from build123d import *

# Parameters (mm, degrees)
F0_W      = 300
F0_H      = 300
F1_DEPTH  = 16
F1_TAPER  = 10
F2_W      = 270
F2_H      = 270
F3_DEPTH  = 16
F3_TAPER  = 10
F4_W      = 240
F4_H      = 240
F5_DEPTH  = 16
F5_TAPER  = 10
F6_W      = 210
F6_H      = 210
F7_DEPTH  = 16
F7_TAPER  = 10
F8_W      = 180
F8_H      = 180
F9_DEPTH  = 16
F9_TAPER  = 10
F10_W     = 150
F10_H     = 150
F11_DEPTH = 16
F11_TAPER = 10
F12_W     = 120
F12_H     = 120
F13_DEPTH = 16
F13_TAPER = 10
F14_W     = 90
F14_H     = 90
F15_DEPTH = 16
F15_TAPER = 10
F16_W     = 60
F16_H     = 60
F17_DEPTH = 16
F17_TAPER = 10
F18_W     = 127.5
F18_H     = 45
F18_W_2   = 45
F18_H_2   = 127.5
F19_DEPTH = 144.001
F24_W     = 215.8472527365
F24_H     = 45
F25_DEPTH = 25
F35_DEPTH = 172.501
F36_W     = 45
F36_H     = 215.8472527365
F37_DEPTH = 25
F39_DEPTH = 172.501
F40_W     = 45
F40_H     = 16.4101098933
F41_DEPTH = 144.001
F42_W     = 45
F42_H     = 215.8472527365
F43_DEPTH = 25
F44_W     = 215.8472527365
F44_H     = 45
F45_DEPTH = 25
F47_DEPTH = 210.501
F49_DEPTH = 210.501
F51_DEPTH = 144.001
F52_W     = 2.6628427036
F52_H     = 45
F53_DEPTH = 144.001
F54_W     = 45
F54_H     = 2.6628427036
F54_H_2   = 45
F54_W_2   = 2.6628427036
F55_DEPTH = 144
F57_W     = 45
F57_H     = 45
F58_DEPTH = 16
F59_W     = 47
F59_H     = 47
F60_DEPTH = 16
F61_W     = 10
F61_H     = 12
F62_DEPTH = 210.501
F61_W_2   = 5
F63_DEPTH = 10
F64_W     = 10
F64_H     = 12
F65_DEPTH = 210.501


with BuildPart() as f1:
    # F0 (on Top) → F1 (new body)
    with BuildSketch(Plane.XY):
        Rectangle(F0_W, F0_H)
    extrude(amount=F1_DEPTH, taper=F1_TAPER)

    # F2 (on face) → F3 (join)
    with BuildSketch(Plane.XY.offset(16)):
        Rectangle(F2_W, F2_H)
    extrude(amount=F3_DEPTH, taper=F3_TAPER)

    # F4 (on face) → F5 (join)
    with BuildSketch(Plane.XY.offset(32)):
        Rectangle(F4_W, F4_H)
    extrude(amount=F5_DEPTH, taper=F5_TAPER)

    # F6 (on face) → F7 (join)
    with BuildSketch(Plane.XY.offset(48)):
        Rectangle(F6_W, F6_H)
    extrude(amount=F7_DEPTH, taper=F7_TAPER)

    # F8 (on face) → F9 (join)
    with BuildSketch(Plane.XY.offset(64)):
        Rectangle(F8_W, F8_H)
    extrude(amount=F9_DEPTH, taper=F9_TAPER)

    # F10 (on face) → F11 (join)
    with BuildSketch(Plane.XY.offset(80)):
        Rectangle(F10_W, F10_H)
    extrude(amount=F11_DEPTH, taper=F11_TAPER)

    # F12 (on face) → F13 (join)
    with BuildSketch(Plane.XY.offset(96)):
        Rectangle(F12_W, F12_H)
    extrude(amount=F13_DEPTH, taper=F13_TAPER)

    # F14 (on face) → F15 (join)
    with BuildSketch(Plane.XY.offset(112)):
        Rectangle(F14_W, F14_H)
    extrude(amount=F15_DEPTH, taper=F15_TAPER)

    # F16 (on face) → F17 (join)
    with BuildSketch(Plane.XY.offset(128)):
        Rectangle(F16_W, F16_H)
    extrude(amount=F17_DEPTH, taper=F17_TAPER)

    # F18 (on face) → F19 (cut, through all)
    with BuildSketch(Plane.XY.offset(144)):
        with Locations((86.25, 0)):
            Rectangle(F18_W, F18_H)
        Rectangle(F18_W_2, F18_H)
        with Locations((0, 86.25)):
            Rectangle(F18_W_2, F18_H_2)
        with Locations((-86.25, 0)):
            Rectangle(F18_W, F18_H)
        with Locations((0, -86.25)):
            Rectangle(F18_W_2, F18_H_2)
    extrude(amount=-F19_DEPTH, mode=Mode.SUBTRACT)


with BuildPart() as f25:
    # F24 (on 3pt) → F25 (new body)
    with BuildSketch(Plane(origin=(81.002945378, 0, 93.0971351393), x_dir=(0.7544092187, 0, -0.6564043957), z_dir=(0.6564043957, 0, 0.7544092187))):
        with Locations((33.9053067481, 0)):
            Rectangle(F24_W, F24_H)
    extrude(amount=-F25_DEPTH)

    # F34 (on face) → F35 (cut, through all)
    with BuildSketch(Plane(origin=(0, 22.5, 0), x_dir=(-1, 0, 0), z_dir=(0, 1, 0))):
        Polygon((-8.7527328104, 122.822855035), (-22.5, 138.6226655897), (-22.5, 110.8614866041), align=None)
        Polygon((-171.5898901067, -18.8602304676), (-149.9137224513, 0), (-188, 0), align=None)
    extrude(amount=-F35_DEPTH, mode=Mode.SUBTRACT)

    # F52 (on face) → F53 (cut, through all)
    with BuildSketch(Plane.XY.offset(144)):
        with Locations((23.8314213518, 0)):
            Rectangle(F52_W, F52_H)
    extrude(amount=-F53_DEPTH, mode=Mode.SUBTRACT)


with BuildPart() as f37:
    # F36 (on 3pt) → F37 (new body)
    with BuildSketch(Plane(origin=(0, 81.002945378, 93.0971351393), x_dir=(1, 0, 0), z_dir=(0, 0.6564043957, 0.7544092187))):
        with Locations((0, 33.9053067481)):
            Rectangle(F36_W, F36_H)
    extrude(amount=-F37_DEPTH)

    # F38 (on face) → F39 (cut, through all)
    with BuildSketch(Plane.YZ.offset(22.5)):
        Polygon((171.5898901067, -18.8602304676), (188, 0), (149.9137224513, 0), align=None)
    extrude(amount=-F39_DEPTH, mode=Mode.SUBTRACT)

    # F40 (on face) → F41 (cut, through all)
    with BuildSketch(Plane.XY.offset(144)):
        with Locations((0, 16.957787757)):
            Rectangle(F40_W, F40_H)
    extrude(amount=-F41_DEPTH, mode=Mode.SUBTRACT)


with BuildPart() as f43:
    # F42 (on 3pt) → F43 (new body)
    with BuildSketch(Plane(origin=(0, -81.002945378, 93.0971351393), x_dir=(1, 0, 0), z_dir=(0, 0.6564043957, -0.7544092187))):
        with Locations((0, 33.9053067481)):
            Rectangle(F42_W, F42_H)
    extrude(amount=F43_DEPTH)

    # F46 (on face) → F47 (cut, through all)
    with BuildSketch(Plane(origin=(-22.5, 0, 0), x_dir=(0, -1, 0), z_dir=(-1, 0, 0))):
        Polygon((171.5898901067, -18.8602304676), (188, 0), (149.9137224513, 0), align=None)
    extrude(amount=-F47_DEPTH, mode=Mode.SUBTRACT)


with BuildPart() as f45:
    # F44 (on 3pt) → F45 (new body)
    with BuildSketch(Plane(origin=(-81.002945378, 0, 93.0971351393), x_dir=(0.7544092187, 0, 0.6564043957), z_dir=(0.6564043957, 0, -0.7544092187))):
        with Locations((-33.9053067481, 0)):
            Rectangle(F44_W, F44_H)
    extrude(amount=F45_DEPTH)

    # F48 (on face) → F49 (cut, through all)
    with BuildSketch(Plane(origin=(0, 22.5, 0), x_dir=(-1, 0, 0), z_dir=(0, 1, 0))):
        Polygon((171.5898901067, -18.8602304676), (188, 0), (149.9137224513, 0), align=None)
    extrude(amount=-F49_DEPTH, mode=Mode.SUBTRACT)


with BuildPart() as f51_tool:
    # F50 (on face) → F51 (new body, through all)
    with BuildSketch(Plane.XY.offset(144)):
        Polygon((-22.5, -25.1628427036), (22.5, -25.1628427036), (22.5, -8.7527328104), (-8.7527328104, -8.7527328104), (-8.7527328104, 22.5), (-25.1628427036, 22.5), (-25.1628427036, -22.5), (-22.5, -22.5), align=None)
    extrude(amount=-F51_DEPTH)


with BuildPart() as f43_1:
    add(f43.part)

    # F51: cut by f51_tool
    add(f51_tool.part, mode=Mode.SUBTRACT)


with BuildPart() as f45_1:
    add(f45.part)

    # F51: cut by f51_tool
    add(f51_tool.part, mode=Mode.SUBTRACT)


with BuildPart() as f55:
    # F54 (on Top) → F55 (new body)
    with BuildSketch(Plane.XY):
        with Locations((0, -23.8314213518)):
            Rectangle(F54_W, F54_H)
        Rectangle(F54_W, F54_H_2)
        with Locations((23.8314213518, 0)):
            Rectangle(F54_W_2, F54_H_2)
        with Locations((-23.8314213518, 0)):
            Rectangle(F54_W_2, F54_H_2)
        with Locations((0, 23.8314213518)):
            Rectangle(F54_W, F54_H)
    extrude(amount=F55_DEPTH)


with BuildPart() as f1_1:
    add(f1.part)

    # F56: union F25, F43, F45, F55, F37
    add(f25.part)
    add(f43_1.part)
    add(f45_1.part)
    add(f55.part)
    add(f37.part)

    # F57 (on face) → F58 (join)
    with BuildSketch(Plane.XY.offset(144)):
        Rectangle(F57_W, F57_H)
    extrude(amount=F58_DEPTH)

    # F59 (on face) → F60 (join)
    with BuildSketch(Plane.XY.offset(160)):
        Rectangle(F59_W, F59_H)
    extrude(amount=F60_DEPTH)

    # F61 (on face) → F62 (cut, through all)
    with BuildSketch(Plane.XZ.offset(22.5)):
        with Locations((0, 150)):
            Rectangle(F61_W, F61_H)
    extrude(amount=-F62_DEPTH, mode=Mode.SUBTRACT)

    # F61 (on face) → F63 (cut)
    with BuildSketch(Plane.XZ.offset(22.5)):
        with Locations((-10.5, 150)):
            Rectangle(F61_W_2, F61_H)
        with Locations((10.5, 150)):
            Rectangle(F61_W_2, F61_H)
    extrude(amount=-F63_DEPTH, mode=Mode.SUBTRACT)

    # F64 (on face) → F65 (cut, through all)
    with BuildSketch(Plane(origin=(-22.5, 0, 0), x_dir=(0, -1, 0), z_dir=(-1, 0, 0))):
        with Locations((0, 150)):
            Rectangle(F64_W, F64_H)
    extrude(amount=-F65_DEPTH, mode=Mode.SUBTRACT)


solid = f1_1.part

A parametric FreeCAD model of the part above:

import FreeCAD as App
import Part
import Sketcher

V = App.Vector
Q = App.Units.Quantity


def add_polygon(sketch, points):
    """Adds a closed chain of lines whose ends are joined by coincident constraints."""
    first, n = sketch.GeometryCount, len(points)
    for a, b in zip(points, points[1:] + points[:1]):
        sketch.addGeometry(Part.LineSegment(App.Vector(*a, 0), App.Vector(*b, 0)), False)
    for i in range(n):
        sketch.addConstraint(Sketcher.Constraint("Coincident", first + i, 2, first + (i + 1) % n, 1))

doc = App.newDocument("Part")
body = doc.addObject("PartDesign::Body", "Body")
body.AllowCompound = True

sketch1 = doc.addObject("Sketcher::SketchObject", "Sketch")
body.addObject(sketch1)
sketch1.AttachmentSupport = (doc.XY_Plane, [""])
sketch1.MapMode = "FlatFace"
add_polygon(sketch1, [(-150, 150), (-150, -150), (150, -150), (150, 150)])
sketch1.addConstraint([
    Sketcher.Constraint("Vertical", 0),
    Sketcher.Constraint("Horizontal", 1),
    Sketcher.Constraint("Vertical", 2),
    Sketcher.Constraint("Horizontal", 3),
    Sketcher.Constraint("Symmetric", 0, 2, 2, 2, -1, 1),
    Sketcher.Constraint("Equal", 3, 0),
    Sketcher.Constraint("DistanceX", 1, 1, 1, 2, Q("300 mm")),
])
pad1 = doc.addObject("PartDesign::Pad", "Pad")
body.addObject(pad1)
pad1.Profile = sketch1
pad1.Length = 16
pad1.TaperAngle = -10

sketch2 = doc.addObject("Sketcher::SketchObject", "Sketch001")
body.addObject(sketch2)
sketch2.AttachmentSupport = (doc.XY_Plane, [""])
sketch2.MapMode = "FlatFace"
sketch2.AttachmentOffset = App.Placement(V(0, 0, 16), App.Rotation())
add_polygon(sketch2, [(-135, 135), (-135, -135), (135, -135), (135, 135)])
sketch2.addConstraint([
    Sketcher.Constraint("Vertical", 0),
    Sketcher.Constraint("Horizontal", 1),
    Sketcher.Constraint("Vertical", 2),
    Sketcher.Constraint("Horizontal", 3),
    Sketcher.Constraint("Symmetric", 0, 2, 2, 2, -1, 1),
    Sketcher.Constraint("Equal", 3, 0),
    Sketcher.Constraint("DistanceX", 1, 1, 1, 2, Q("270 mm")),
])
pad2 = doc.addObject("PartDesign::Pad", "Pad001")
body.addObject(pad2)
pad2.Profile = sketch2
pad2.Length = 16
pad2.TaperAngle = -10

sketch3 = doc.addObject("Sketcher::SketchObject", "Sketch002")
body.addObject(sketch3)
sketch3.AttachmentSupport = (doc.XY_Plane, [""])
sketch3.MapMode = "FlatFace"
sketch3.AttachmentOffset = App.Placement(V(0, 0, 32), App.Rotation())
add_polygon(sketch3, [(-120, 120), (-120, -120), (120, -120), (120, 120)])
sketch3.addConstraint([
    Sketcher.Constraint("Vertical", 0),
    Sketcher.Constraint("Horizontal", 1),
    Sketcher.Constraint("Vertical", 2),
    Sketcher.Constraint("Horizontal", 3),
    Sketcher.Constraint("Symmetric", 0, 2, 2, 2, -1, 1),
    Sketcher.Constraint("Equal", 3, 0),
    Sketcher.Constraint("DistanceX", 1, 1, 1, 2, Q("240 mm")),
])
pad3 = doc.addObject("PartDesign::Pad", "Pad002")
body.addObject(pad3)
pad3.Profile = sketch3
pad3.Length = 16
pad3.TaperAngle = -10

sketch4 = doc.addObject("Sketcher::SketchObject", "Sketch003")
body.addObject(sketch4)
sketch4.AttachmentSupport = (doc.XY_Plane, [""])
sketch4.MapMode = "FlatFace"
sketch4.AttachmentOffset = App.Placement(V(0, 0, 48), App.Rotation())
add_polygon(sketch4, [(-105, 105), (-105, -105), (105, -105), (105, 105)])
sketch4.addConstraint([
    Sketcher.Constraint("Vertical", 0),
    Sketcher.Constraint("Horizontal", 1),
    Sketcher.Constraint("Vertical", 2),
    Sketcher.Constraint("Horizontal", 3),
    Sketcher.Constraint("Symmetric", 0, 2, 2, 2, -1, 1),
    Sketcher.Constraint("Equal", 3, 0),
    Sketcher.Constraint("DistanceX", 1, 1, 1, 2, Q("210 mm")),
])
pad4 = doc.addObject("PartDesign::Pad", "Pad003")
body.addObject(pad4)
pad4.Profile = sketch4
pad4.Length = 16
pad4.TaperAngle = -10

sketch5 = doc.addObject("Sketcher::SketchObject", "Sketch004")
body.addObject(sketch5)
sketch5.AttachmentSupport = (doc.XY_Plane, [""])
sketch5.MapMode = "FlatFace"
sketch5.AttachmentOffset = App.Placement(V(0, 0, 64), App.Rotation())
add_polygon(sketch5, [(-90, 90), (-90, -90), (90, -90), (90, 90)])
sketch5.addConstraint([
    Sketcher.Constraint("Vertical", 0),
    Sketcher.Constraint("Horizontal", 1),
    Sketcher.Constraint("Vertical", 2),
    Sketcher.Constraint("Horizontal", 3),
    Sketcher.Constraint("Symmetric", 0, 2, 2, 2, -1, 1),
    Sketcher.Constraint("Equal", 3, 0),
    Sketcher.Constraint("DistanceX", 1, 1, 1, 2, Q("180 mm")),
])
pad5 = doc.addObject("PartDesign::Pad", "Pad004")
body.addObject(pad5)
pad5.Profile = sketch5
pad5.Length = 16
pad5.TaperAngle = -10

sketch6 = doc.addObject("Sketcher::SketchObject", "Sketch005")
body.addObject(sketch6)
sketch6.AttachmentSupport = (doc.XY_Plane, [""])
sketch6.MapMode = "FlatFace"
sketch6.AttachmentOffset = App.Placement(V(0, 0, 80), App.Rotation())
add_polygon(sketch6, [(-75, 75), (-75, -75), (75, -75), (75, 75)])
sketch6.addConstraint([
    Sketcher.Constraint("Vertical", 0),
    Sketcher.Constraint("Horizontal", 1),
    Sketcher.Constraint("Vertical", 2),
    Sketcher.Constraint("Horizontal", 3),
    Sketcher.Constraint("Symmetric", 0, 2, 2, 2, -1, 1),
    Sketcher.Constraint("Equal", 3, 0),
    Sketcher.Constraint("DistanceX", 1, 1, 1, 2, Q("150 mm")),
])
pad6 = doc.addObject("PartDesign::Pad", "Pad005")
body.addObject(pad6)
pad6.Profile = sketch6
pad6.Length = 16
pad6.TaperAngle = -10

sketch7 = doc.addObject("Sketcher::SketchObject", "Sketch006")
body.addObject(sketch7)
sketch7.AttachmentSupport = (doc.XY_Plane, [""])
sketch7.MapMode = "FlatFace"
sketch7.AttachmentOffset = App.Placement(V(0, 0, 96), App.Rotation())
add_polygon(sketch7, [(-60, 60), (-60, -60), (60, -60), (60, 60)])
sketch7.addConstraint([
    Sketcher.Constraint("Vertical", 0),
    Sketcher.Constraint("Horizontal", 1),
    Sketcher.Constraint("Vertical", 2),
    Sketcher.Constraint("Horizontal", 3),
    Sketcher.Constraint("Symmetric", 0, 2, 2, 2, -1, 1),
    Sketcher.Constraint("Equal", 3, 0),
    Sketcher.Constraint("DistanceX", 1, 1, 1, 2, Q("120 mm")),
])
pad7 = doc.addObject("PartDesign::Pad", "Pad006")
body.addObject(pad7)
pad7.Profile = sketch7
pad7.Length = 16
pad7.TaperAngle = -10

sketch8 = doc.addObject("Sketcher::SketchObject", "Sketch007")
body.addObject(sketch8)
sketch8.AttachmentSupport = (doc.XY_Plane, [""])
sketch8.MapMode = "FlatFace"
sketch8.AttachmentOffset = App.Placement(V(0, 0, 112), App.Rotation())
add_polygon(sketch8, [(-45, 45), (-45, -45), (45, -45), (45, 45)])
sketch8.addConstraint([
    Sketcher.Constraint("Vertical", 0),
    Sketcher.Constraint("Horizontal", 1),
    Sketcher.Constraint("Vertical", 2),
    Sketcher.Constraint("Horizontal", 3),
    Sketcher.Constraint("Symmetric", 0, 2, 2, 2, -1, 1),
    Sketcher.Constraint("Equal", 3, 0),
    Sketcher.Constraint("DistanceX", 1, 1, 1, 2, Q("90 mm")),
])
pad8 = doc.addObject("PartDesign::Pad", "Pad007")
body.addObject(pad8)
pad8.Profile = sketch8
pad8.Length = 16
pad8.TaperAngle = -10

sketch9 = doc.addObject("Sketcher::SketchObject", "Sketch008")
body.addObject(sketch9)
sketch9.AttachmentSupport = (doc.XY_Plane, [""])
sketch9.MapMode = "FlatFace"
sketch9.AttachmentOffset = App.Placement(V(0, 0, 128), App.Rotation())
add_polygon(sketch9, [(-30, 30), (-30, -30), (30, -30), (30, 30)])
sketch9.addConstraint([
    Sketcher.Constraint("Vertical", 0),
    Sketcher.Constraint("Horizontal", 1),
    Sketcher.Constraint("Vertical", 2),
    Sketcher.Constraint("Horizontal", 3),
    Sketcher.Constraint("Symmetric", 0, 2, 2, 2, -1, 1),
    Sketcher.Constraint("Equal", 3, 0),
    Sketcher.Constraint("DistanceX", 1, 1, 1, 2, Q("60 mm")),
])
pad9 = doc.addObject("PartDesign::Pad", "Pad008")
body.addObject(pad9)
pad9.Profile = sketch9
pad9.Length = 16
pad9.TaperAngle = -10

sketch10 = doc.addObject("Sketcher::SketchObject", "Sketch009")
body.addObject(sketch10)
sketch10.AttachmentSupport = (doc.XY_Plane, [""])
sketch10.MapMode = "FlatFace"
sketch10.AttachmentOffset = App.Placement(V(0, 0, 144), App.Rotation())
add_polygon(sketch10, [(150, -22), (150, 22), (22, 22), (22, 150), (-22, 150), (-22, 22), (-150, 22), (-150, -22), (-22, -22), (-22, -150), (22, -150), (22, -22)])
sketch10.addConstraint([
    Sketcher.Constraint("Vertical", 0),
    Sketcher.Constraint("Horizontal", 1),
    Sketcher.Constraint("Vertical", 2),
    Sketcher.Constraint("Horizontal", 3),
    Sketcher.Constraint("Vertical", 4),
    Sketcher.Constraint("Horizontal", 5),
    Sketcher.Constraint("Vertical", 6),
    Sketcher.Constraint("Horizontal", 7),
    Sketcher.Constraint("Vertical", 8),
    Sketcher.Constraint("Horizontal", 9),
    Sketcher.Constraint("Vertical", 10),
    Sketcher.Constraint("Horizontal", 11),
    Sketcher.Constraint("Symmetric", 0, 2, 6, 2, -1, 1),
    Sketcher.Constraint("Symmetric", 2, 2, 8, 2, -1, 1),
    Sketcher.Constraint("Symmetric", 4, 2, 10, 2, -1, 1),
    Sketcher.Constraint("Symmetric", 1, 2, 4, 2, -2),
    Sketcher.Constraint("Equal", 9, 0),
    Sketcher.Constraint("Equal", 11, 2),
    Sketcher.Constraint("DistanceX", 3, 2, 3, 1, Q("45 mm")),
    Sketcher.Constraint("DistanceX", 1, 2, 1, 1, Q("127.5 mm")),
])
pocket1 = doc.addObject("PartDesign::Pocket", "Pocket")
body.addObject(pocket1)
pocket1.Profile = sketch10
pocket1.Type = "ThroughAll"
body2 = doc.addObject("PartDesign::Body", "Body001")

sketch11 = doc.addObject("Sketcher::SketchObject", "Sketch010")
body2.addObject(sketch11)
sketch11.Placement = App.Placement(V(81.002945, 0, 93.097135), App.Rotation(V(0.754409219, 0, -0.656404396), V(0, 1.000000001, 0), V(0.656404396, 0, 0.754409219), "ZXY"))
add_polygon(sketch11, [(-74, 23), (-74, -23), (142, -23), (142, 23)])
sketch11.addConstraint([
    Sketcher.Constraint("Vertical", 0),
    Sketcher.Constraint("Horizontal", 1),
    Sketcher.Constraint("Vertical", 2),
    Sketcher.Constraint("Horizontal", 3),
    Sketcher.Constraint("DistanceY", 0, 2, 0, 1, Q("45 mm")),
    Sketcher.Constraint("DistanceY", 0, 2, -1, 1, Q("22.5 mm")),
    Sketcher.Constraint("DistanceX", 1, 1, 1, 2, Q("215.847253 mm")),
    Sketcher.Constraint("DistanceX", 0, 2, -1, 1, Q("74.01832 mm")),
])
pad10 = doc.addObject("PartDesign::Pad", "Pad009")
body2.addObject(pad10)
pad10.Profile = sketch11
pad10.Length = 25
pad10.Reversed = True

sketch12 = doc.addObject("Sketcher::SketchObject", "Sketch011")
body2.addObject(sketch12)
sketch12.AttachmentSupport = (doc.getObject("XZ_Plane001"), [""])
sketch12.MapMode = "FlatFace"
sketch12.AttachmentOffset = App.Placement(V(0, 0, -22.5), App.Rotation())
add_polygon(sketch12, [(9, 123), (22, 139), (22, 111)])
add_polygon(sketch12, [(172, -19), (150, 0), (188, 0)])
sketch12.addConstraint([
    Sketcher.Constraint("Vertical", 1),
    Sketcher.Constraint("Horizontal", 4),
    Sketcher.Constraint("PointOnObject", 3, 2, -1),
    Sketcher.Constraint("Perpendicular", 0, 2),
    Sketcher.Constraint("Parallel", 2, 3),
    Sketcher.Constraint("Perpendicular", 3, 5),
    Sketcher.Constraint("Distance", 5, Q("25 mm")),
    Sketcher.Constraint("DistanceX", -1, 1, 4, 2, Q("188 mm")),
    Sketcher.Constraint("DistanceX", -1, 1, 0, 2, Q("22.5 mm")),
    Sketcher.Constraint("DistanceY", 1, 2, 1, 1, Q("27.761179 mm")),
    Sketcher.Constraint("Distance", 0, Q("20.943289 mm")),
    Sketcher.Constraint("DistanceY", -1, 1, 0, 2, Q("138.622666 mm")),
])
pocket2 = doc.addObject("PartDesign::Pocket", "Pocket001")
body2.addObject(pocket2)
pocket2.Profile = sketch12
pocket2.Type = "ThroughAll"
pocket2.Reversed = True

sketch13 = doc.addObject("Sketcher::SketchObject", "Sketch012")
body2.addObject(sketch13)
sketch13.AttachmentSupport = (doc.getObject("XY_Plane001"), [""])
sketch13.MapMode = "FlatFace"
sketch13.AttachmentOffset = App.Placement(V(0, 0, 144), App.Rotation())
add_polygon(sketch13, [(22.5, 22.5), (22.5, -22.5), (25.2, -22.5), (25.2, 22.5)])
sketch13.addConstraint([
    Sketcher.Constraint("Vertical", 0),
    Sketcher.Constraint("Horizontal", 1),
    Sketcher.Constraint("Vertical", 2),
    Sketcher.Constraint("Horizontal", 3),
    Sketcher.Constraint("DistanceY", 0, 2, 0, 1, Q("45 mm")),
    Sketcher.Constraint("DistanceX", -1, 1, 0, 2, Q("22.5 mm")),
    Sketcher.Constraint("DistanceY", 0, 2, -1, 1, Q("22.5 mm")),
    Sketcher.Constraint("DistanceX", 1, 1, 1, 2, Q("2.662843 mm")),
])
pocket3 = doc.addObject("PartDesign::Pocket", "Pocket002")
body2.addObject(pocket3)
pocket3.Profile = sketch13
pocket3.Type = "ThroughAll"
body3 = doc.addObject("PartDesign::Body", "Body002")

sketch14 = doc.addObject("Sketcher::SketchObject", "Sketch013")
body3.addObject(sketch14)
sketch14.Placement = App.Placement(V(0, 81.002945, 93.097135), App.Rotation(V(1, 0, 0), V(0, 0.754409219, -0.656404396), V(0, 0.656404396, 0.754409219), "ZXY"))
add_polygon(sketch14, [(-22, 142), (-22, -74), (22, -74), (22, 142)])
sketch14.addConstraint([
    Sketcher.Constraint("Vertical", 0),
    Sketcher.Constraint("Horizontal", 1),
    Sketcher.Constraint("Vertical", 2),
    Sketcher.Constraint("Horizontal", 3),
    Sketcher.Constraint("DistanceX", 1, 1, 1, 2, Q("45 mm")),
    Sketcher.Constraint("DistanceX", 0, 2, -1, 1, Q("22.5 mm")),
    Sketcher.Constraint("DistanceY", 0, 2, 0, 1, Q("215.847253 mm")),
    Sketcher.Constraint("DistanceY", 0, 2, -1, 1, Q("74.01832 mm")),
])
pad11 = doc.addObject("PartDesign::Pad", "Pad010")
body3.addObject(pad11)
pad11.Profile = sketch14
pad11.Length = 25
pad11.Reversed = True

sketch15 = doc.addObject("Sketcher::SketchObject", "Sketch014")
body3.addObject(sketch15)
sketch15.AttachmentSupport = (doc.getObject("YZ_Plane002"), [""])
sketch15.MapMode = "FlatFace"
sketch15.AttachmentOffset = App.Placement(V(0, 0, 22.5), App.Rotation())
add_polygon(sketch15, [(172, -19), (188, 0), (150, 0)])
sketch15.addConstraint([
    Sketcher.Constraint("Horizontal", 1),
    Sketcher.Constraint("PointOnObject", 0, 2, -1),
    Sketcher.Constraint("Perpendicular", 0, 2),
    Sketcher.Constraint("Distance", 0, Q("25 mm")),
    Sketcher.Constraint("DistanceX", -1, 1, 0, 2, Q("188 mm")),
    Sketcher.Constraint("Distance", 2, Q("28.732639 mm")),
])
pocket4 = doc.addObject("PartDesign::Pocket", "Pocket003")
body3.addObject(pocket4)
pocket4.Profile = sketch15
pocket4.Type = "ThroughAll"

sketch16 = doc.addObject("Sketcher::SketchObject", "Sketch015")
body3.addObject(sketch16)
sketch16.AttachmentSupport = (doc.getObject("XY_Plane002"), [""])
sketch16.MapMode = "FlatFace"
sketch16.AttachmentOffset = App.Placement(V(0, 0, 144), App.Rotation())
add_polygon(sketch16, [(-22, 25), (-22, 9), (22, 9), (22, 25)])
sketch16.addConstraint([
    Sketcher.Constraint("Vertical", 0),
    Sketcher.Constraint("Horizontal", 1),
    Sketcher.Constraint("Vertical", 2),
    Sketcher.Constraint("Horizontal", 3),
    Sketcher.Constraint("DistanceX", 1, 1, 1, 2, Q("45 mm")),
    Sketcher.Constraint("DistanceX", 0, 2, -1, 1, Q("22.5 mm")),
    Sketcher.Constraint("DistanceY", 0, 2, 0, 1, Q("16.41011 mm")),
    Sketcher.Constraint("DistanceY", -1, 1, 0, 2, Q("8.752733 mm")),
])
pocket5 = doc.addObject("PartDesign::Pocket", "Pocket004")
body3.addObject(pocket5)
pocket5.Profile = sketch16
pocket5.Type = "ThroughAll"
body4 = doc.addObject("PartDesign::Body", "Body003")

sketch17 = doc.addObject("Sketcher::SketchObject", "Sketch016")
body4.addObject(sketch17)
sketch17.Placement = App.Placement(V(0, -81.002945, 93.097135), App.Rotation(V(1, 0, 0), V(0, -0.754409219, -0.656404396), V(0, 0.656404396, -0.754409219), "ZXY"))
add_polygon(sketch17, [(-22, 142), (-22, -74), (22, -74), (22, 142)])
sketch17.addConstraint([
    Sketcher.Constraint("Vertical", 0),
    Sketcher.Constraint("Horizontal", 1),
    Sketcher.Constraint("Vertical", 2),
    Sketcher.Constraint("Horizontal", 3),
    Sketcher.Constraint("DistanceX", 1, 1, 1, 2, Q("45 mm")),
    Sketcher.Constraint("DistanceX", 0, 2, -1, 1, Q("22.5 mm")),
    Sketcher.Constraint("DistanceY", 0, 2, 0, 1, Q("215.847253 mm")),
    Sketcher.Constraint("DistanceY", 0, 2, -1, 1, Q("74.01832 mm")),
])
pad12 = doc.addObject("PartDesign::Pad", "Pad011")
body4.addObject(pad12)
pad12.Profile = sketch17
pad12.Length = 25

sketch18 = doc.addObject("Sketcher::SketchObject", "Sketch017")
body4.addObject(sketch18)
sketch18.AttachmentSupport = (doc.getObject("YZ_Plane003"), [""])
sketch18.MapMode = "FlatFace"
sketch18.AttachmentOffset = App.Placement(V(0, 0, -22.5), App.Rotation())
add_polygon(sketch18, [(-172, -19), (-188, 0), (-150, 0)])
sketch18.addConstraint([
    Sketcher.Constraint("Horizontal", 1),
    Sketcher.Constraint("PointOnObject", 0, 2, -1),
    Sketcher.Constraint("Perpendicular", 0, 2),
    Sketcher.Constraint("Distance", 0, Q("25 mm")),
    Sketcher.Constraint("DistanceX", 0, 2, -1, 1, Q("188 mm")),
    Sketcher.Constraint("Distance", 2, Q("28.732639 mm")),
])
pocket6 = doc.addObject("PartDesign::Pocket", "Pocket005")
body4.addObject(pocket6)
pocket6.Profile = sketch18
pocket6.Type = "ThroughAll"
pocket6.Reversed = True
body5 = doc.addObject("PartDesign::Body", "Body004")

sketch19 = doc.addObject("Sketcher::SketchObject", "Sketch018")
body5.addObject(sketch19)
sketch19.Placement = App.Placement(V(-81.002945, 0, 93.097135), App.Rotation(V(0.754409219, 0, 0.656404396), V(0, -1.000000001, 0), V(0.656404396, 0, -0.754409219), "ZXY"))
add_polygon(sketch19, [(-142, 23), (-142, -23), (74, -23), (74, 23)])
sketch19.addConstraint([
    Sketcher.Constraint("Vertical", 0),
    Sketcher.Constraint("Horizontal", 1),
    Sketcher.Constraint("Vertical", 2),
    Sketcher.Constraint("Horizontal", 3),
    Sketcher.Constraint("DistanceY", 0, 2, 0, 1, Q("45 mm")),
    Sketcher.Constraint("DistanceY", 0, 2, -1, 1, Q("22.5 mm")),
    Sketcher.Constraint("DistanceX", 1, 1, 1, 2, Q("215.847253 mm")),
    Sketcher.Constraint("DistanceX", -1, 1, 1, 2, Q("74.01832 mm")),
])
pad13 = doc.addObject("PartDesign::Pad", "Pad012")
body5.addObject(pad13)
pad13.Profile = sketch19
pad13.Length = 25

sketch20 = doc.addObject("Sketcher::SketchObject", "Sketch019")
body5.addObject(sketch20)
sketch20.AttachmentSupport = (doc.getObject("XZ_Plane004"), [""])
sketch20.MapMode = "FlatFace"
sketch20.AttachmentOffset = App.Placement(V(0, 0, -22.5), App.Rotation())
add_polygon(sketch20, [(-172, -19), (-188, 0), (-150, 0)])
sketch20.addConstraint([
    Sketcher.Constraint("Horizontal", 1),
    Sketcher.Constraint("PointOnObject", 0, 2, -1),
    Sketcher.Constraint("Perpendicular", 0, 2),
    Sketcher.Constraint("Distance", 0, Q("25 mm")),
    Sketcher.Constraint("DistanceX", 0, 2, -1, 1, Q("188 mm")),
    Sketcher.Constraint("Distance", 2, Q("28.732639 mm")),
])
pocket7 = doc.addObject("PartDesign::Pocket", "Pocket006")
body5.addObject(pocket7)
pocket7.Profile = sketch20
pocket7.Type = "ThroughAll"
pocket7.Reversed = True
body6 = doc.addObject("PartDesign::Body", "Body005")

sketch21 = doc.addObject("Sketcher::SketchObject", "Sketch020")
body6.addObject(sketch21)
sketch21.AttachmentSupport = (doc.getObject("XY_Plane005"), [""])
sketch21.MapMode = "FlatFace"
sketch21.AttachmentOffset = App.Placement(V(0, 0, 144), App.Rotation())
add_polygon(sketch21, [(-22.5, -25.2), (22.5, -25.2), (22.5, -8.8), (-8.8, -8.8), (-8.8, 22.5), (-25.2, 22.5), (-25.2, -22.5), (-22.5, -22.5)])
sketch21.addConstraint([
    Sketcher.Constraint("Horizontal", 0),
    Sketcher.Constraint("Vertical", 1),
    Sketcher.Constraint("Horizontal", 2),
    Sketcher.Constraint("Vertical", 3),
    Sketcher.Constraint("Horizontal", 4),
    Sketcher.Constraint("Vertical", 5),
    Sketcher.Constraint("Horizontal", 6),
    Sketcher.Constraint("Vertical", 7),
    Sketcher.Constraint("Equal", 4, 1),
    Sketcher.Constraint("Equal", 2, 3),
    Sketcher.Constraint("Equal", 0, 5),
    Sketcher.Constraint("DistanceX", 0, 1, 0, 2, Q("45 mm")),
    Sketcher.Constraint("DistanceX", -1, 1, 0, 2, Q("22.5 mm")),
    Sketcher.Constraint("DistanceY", -1, 1, 3, 2, Q("22.5 mm")),
    Sketcher.Constraint("DistanceX", 4, 2, 4, 1, Q("16.41011 mm")),
    Sketcher.Constraint("DistanceX", 2, 2, 2, 1, Q("31.252733 mm")),
])
pad14 = doc.addObject("PartDesign::Pad", "Pad013")
body6.addObject(pad14)
pad14.Profile = sketch21
pad14.Length = 144.001
pad14.Reversed = True
doc.recompute()

body7 = doc.addObject("PartDesign::Body", "Body006")
body7.BaseFeature = body6
boolean = doc.addObject("PartDesign::Boolean", "Boolean")
body4.addObject(boolean)
boolean.Type = "Cut"
boolean.addObjects([body7])
doc.recompute()

boolean2 = doc.addObject("PartDesign::Boolean", "Boolean001")
body5.addObject(boolean2)
boolean2.Type = "Cut"
boolean2.addObjects([body6])
body8 = doc.addObject("PartDesign::Body", "Body007")

sketch22 = doc.addObject("Sketcher::SketchObject", "Sketch021")
body8.addObject(sketch22)
sketch22.AttachmentSupport = (doc.getObject("XY_Plane007"), [""])
sketch22.MapMode = "FlatFace"
add_polygon(sketch22, [(-22.5, -25.2), (22.5, -25.2), (22.5, -22.5), (25.2, -22.5), (25.2, 22.5), (22.5, 22.5), (22.5, 25.2), (-22.5, 25.2), (-22.5, 22.5), (-25.2, 22.5), (-25.2, -22.5), (-22.5, -22.5)])
sketch22.addConstraint([
    Sketcher.Constraint("Horizontal", 0),
    Sketcher.Constraint("Vertical", 1),
    Sketcher.Constraint("Horizontal", 2),
    Sketcher.Constraint("Vertical", 3),
    Sketcher.Constraint("Horizontal", 4),
    Sketcher.Constraint("Vertical", 5),
    Sketcher.Constraint("Horizontal", 6),
    Sketcher.Constraint("Vertical", 7),
    Sketcher.Constraint("Horizontal", 8),
    Sketcher.Constraint("Vertical", 9),
    Sketcher.Constraint("Horizontal", 10),
    Sketcher.Constraint("Vertical", 11),
    Sketcher.Constraint("Symmetric", 0, 2, 6, 2, -1, 1),
    Sketcher.Constraint("Symmetric", 2, 2, 8, 2, -1, 1),
    Sketcher.Constraint("Symmetric", 4, 2, 10, 2, -1, 1),
    Sketcher.Constraint("Symmetric", 4, 2, 7, 2, -2),
    Sketcher.Constraint("Equal", 10, 1),
    Sketcher.Constraint("Equal", 6, 3),
    Sketcher.Constraint("DistanceX", 0, 1, 0, 2, Q("45 mm")),
    Sketcher.Constraint("DistanceX", 2, 1, 2, 2, Q("2.662843 mm")),
])
pad15 = doc.addObject("PartDesign::Pad", "Pad014")
body8.addObject(pad15)
pad15.Profile = sketch22
pad15.Length = 144
body.AllowCompound = True
doc.recompute()

boolean3 = doc.addObject("PartDesign::Boolean", "Boolean002")
body.addObject(boolean3)
boolean3.Type = "Fuse"
boolean3.addObjects([body2])
doc.recompute()

boolean4 = doc.addObject("PartDesign::Boolean", "Boolean003")
body.addObject(boolean4)
boolean4.Type = "Fuse"
boolean4.addObjects([body4])
doc.recompute()

boolean5 = doc.addObject("PartDesign::Boolean", "Boolean004")
body.addObject(boolean5)
boolean5.Type = "Fuse"
boolean5.addObjects([body5])
doc.recompute()

boolean6 = doc.addObject("PartDesign::Boolean", "Boolean005")
body.addObject(boolean6)
boolean6.Type = "Fuse"
boolean6.addObjects([body8])
doc.recompute()

boolean7 = doc.addObject("PartDesign::Boolean", "Boolean006")
body.addObject(boolean7)
boolean7.Type = "Fuse"
boolean7.addObjects([body3])

sketch23 = doc.addObject("Sketcher::SketchObject", "Sketch022")
body.addObject(sketch23)
sketch23.AttachmentSupport = (doc.XY_Plane, [""])
sketch23.MapMode = "FlatFace"
sketch23.AttachmentOffset = App.Placement(V(0, 0, 144), App.Rotation())
add_polygon(sketch23, [(-22, 22), (-22, -22), (22, -22), (22, 22)])
sketch23.addConstraint([
    Sketcher.Constraint("Vertical", 0),
    Sketcher.Constraint("Horizontal", 1),
    Sketcher.Constraint("Vertical", 2),
    Sketcher.Constraint("Horizontal", 3),
    Sketcher.Constraint("Symmetric", 0, 2, 2, 2, -1, 1),
    Sketcher.Constraint("Equal", 3, 0),
    Sketcher.Constraint("DistanceX", 1, 1, 1, 2, Q("45 mm")),
])
pad16 = doc.addObject("PartDesign::Pad", "Pad015")
body.addObject(pad16)
pad16.Profile = sketch23
pad16.Length = 16

sketch24 = doc.addObject("Sketcher::SketchObject", "Sketch023")
body.addObject(sketch24)
sketch24.AttachmentSupport = (doc.XY_Plane, [""])
sketch24.MapMode = "FlatFace"
sketch24.AttachmentOffset = App.Placement(V(0, 0, 160), App.Rotation())
add_polygon(sketch24, [(-24, 24), (-24, -24), (24, -24), (24, 24)])
sketch24.addConstraint([
    Sketcher.Constraint("Vertical", 0),
    Sketcher.Constraint("Horizontal", 1),
    Sketcher.Constraint("Vertical", 2),
    Sketcher.Constraint("Horizontal", 3),
    Sketcher.Constraint("Symmetric", 0, 2, 2, 2, -1, 1),
    Sketcher.Constraint("Equal", 3, 0),
    Sketcher.Constraint("DistanceX", 1, 1, 1, 2, Q("47 mm")),
])
pad17 = doc.addObject("PartDesign::Pad", "Pad016")
body.addObject(pad17)
pad17.Profile = sketch24
pad17.Length = 16

sketch25 = doc.addObject("Sketcher::SketchObject", "Sketch024")
body.addObject(sketch25)
sketch25.AttachmentSupport = (doc.XZ_Plane, [""])
sketch25.MapMode = "FlatFace"
sketch25.AttachmentOffset = App.Placement(V(0, 0, 22.5), App.Rotation())
add_polygon(sketch25, [(-5, 156), (-5, 144), (5, 144), (5, 156)])
sketch25.addConstraint([
    Sketcher.Constraint("Vertical", 0),
    Sketcher.Constraint("Horizontal", 1),
    Sketcher.Constraint("Vertical", 2),
    Sketcher.Constraint("Horizontal", 3),
    Sketcher.Constraint("DistanceX", 1, 1, 1, 2, Q("10 mm")),
    Sketcher.Constraint("DistanceY", 0, 2, 0, 1, Q("12 mm")),
    Sketcher.Constraint("DistanceX", 0, 2, -1, 1, Q("5 mm")),
    Sketcher.Constraint("DistanceY", -1, 1, 0, 2, Q("144 mm")),
])
pocket8 = doc.addObject("PartDesign::Pocket", "Pocket007")
body.addObject(pocket8)
pocket8.Profile = sketch25
pocket8.Type = "ThroughAll"

sketch26 = doc.addObject("Sketcher::SketchObject", "Sketch025")
body.addObject(sketch26)
sketch26.AttachmentSupport = (doc.XZ_Plane, [""])
sketch26.MapMode = "FlatFace"
sketch26.AttachmentOffset = App.Placement(V(0, 0, 22.5), App.Rotation())
add_polygon(sketch26, [(-13, 156), (-13, 144), (-8, 144), (-8, 156)])
add_polygon(sketch26, [(8, 156), (8, 144), (13, 144), (13, 156)])
sketch26.addConstraint([
    Sketcher.Constraint("Vertical", 0),
    Sketcher.Constraint("Horizontal", 1),
    Sketcher.Constraint("Vertical", 2),
    Sketcher.Constraint("Horizontal", 3),
    Sketcher.Constraint("Vertical", 4),
    Sketcher.Constraint("Horizontal", 5),
    Sketcher.Constraint("Vertical", 6),
    Sketcher.Constraint("Horizontal", 7),
    Sketcher.Constraint("Symmetric", 1, 2, 4, 2, -2),
    Sketcher.Constraint("Symmetric", 3, 2, 6, 2, -2),
    Sketcher.Constraint("DistanceX", 1, 1, 1, 2, Q("5 mm")),
    Sketcher.Constraint("DistanceY", 0, 2, 0, 1, Q("12 mm")),
    Sketcher.Constraint("DistanceX", 0, 2, -1, 1, Q("13 mm")),
    Sketcher.Constraint("DistanceY", -1, 1, 0, 2, Q("144 mm")),
])
pocket9 = doc.addObject("PartDesign::Pocket", "Pocket008")
body.addObject(pocket9)
pocket9.Profile = sketch26
pocket9.Length = 10

sketch27 = doc.addObject("Sketcher::SketchObject", "Sketch026")
body.addObject(sketch27)
sketch27.AttachmentSupport = (doc.YZ_Plane, [""])
sketch27.MapMode = "FlatFace"
sketch27.AttachmentOffset = App.Placement(V(0, 0, -22.5), App.Rotation())
add_polygon(sketch27, [(5, 156), (5, 144), (-5, 144), (-5, 156)])
sketch27.addConstraint([
    Sketcher.Constraint("Vertical", 0),
    Sketcher.Constraint("Horizontal", 1),
    Sketcher.Constraint("Vertical", 2),
    Sketcher.Constraint("Horizontal", 3),
    Sketcher.Constraint("DistanceX", 1, 2, 1, 1, Q("10 mm")),
    Sketcher.Constraint("DistanceY", 0, 2, 0, 1, Q("12 mm")),
    Sketcher.Constraint("DistanceX", -1, 1, 0, 2, Q("5 mm")),
    Sketcher.Constraint("DistanceY", -1, 1, 0, 2, Q("144 mm")),
])
pocket10 = doc.addObject("PartDesign::Pocket", "Pocket009")
body.addObject(pocket10)
pocket10.Profile = sketch27
pocket10.Type = "ThroughAll"
pocket10.Reversed = True

doc.recompute()
